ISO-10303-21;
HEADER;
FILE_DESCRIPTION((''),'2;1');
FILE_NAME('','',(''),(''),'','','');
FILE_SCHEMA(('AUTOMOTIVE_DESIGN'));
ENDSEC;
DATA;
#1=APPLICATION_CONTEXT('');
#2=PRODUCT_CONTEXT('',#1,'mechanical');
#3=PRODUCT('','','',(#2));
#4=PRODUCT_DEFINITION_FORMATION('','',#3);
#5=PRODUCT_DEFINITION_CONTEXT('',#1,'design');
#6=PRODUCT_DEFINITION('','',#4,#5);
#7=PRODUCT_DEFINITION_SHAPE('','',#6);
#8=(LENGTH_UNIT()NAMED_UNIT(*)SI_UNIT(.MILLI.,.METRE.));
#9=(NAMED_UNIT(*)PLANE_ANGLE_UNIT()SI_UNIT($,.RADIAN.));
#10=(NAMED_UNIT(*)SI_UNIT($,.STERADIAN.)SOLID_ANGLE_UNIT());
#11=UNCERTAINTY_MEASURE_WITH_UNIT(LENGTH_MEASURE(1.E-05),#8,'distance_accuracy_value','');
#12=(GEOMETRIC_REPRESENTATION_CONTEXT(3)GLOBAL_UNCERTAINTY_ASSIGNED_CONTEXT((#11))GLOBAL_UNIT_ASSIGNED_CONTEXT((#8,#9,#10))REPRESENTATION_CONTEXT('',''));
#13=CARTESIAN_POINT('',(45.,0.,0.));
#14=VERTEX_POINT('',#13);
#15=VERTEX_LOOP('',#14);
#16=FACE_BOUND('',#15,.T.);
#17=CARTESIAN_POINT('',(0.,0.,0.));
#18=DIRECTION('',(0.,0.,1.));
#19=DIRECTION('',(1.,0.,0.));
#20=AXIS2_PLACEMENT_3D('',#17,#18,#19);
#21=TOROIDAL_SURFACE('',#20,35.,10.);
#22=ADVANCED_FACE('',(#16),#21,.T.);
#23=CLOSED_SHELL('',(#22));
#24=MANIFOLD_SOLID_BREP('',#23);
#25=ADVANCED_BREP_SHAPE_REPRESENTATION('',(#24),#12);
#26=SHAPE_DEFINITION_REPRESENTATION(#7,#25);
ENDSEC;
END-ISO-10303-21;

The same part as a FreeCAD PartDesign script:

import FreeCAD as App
import Part
import Sketcher

V = App.Vector

doc = App.newDocument("Part")
body = doc.addObject("PartDesign::Body", "Body")

# Sketch on YZ plane
sketch1 = body.newObject("Sketcher::SketchObject", "Sketch")
sketch1.AttachmentSupport = (doc.getObject("YZ_Plane"), [""])
sketch1.MapMode = "FlatFace"
sketch1.addGeometry(Part.Circle(V(35, 0, 0), V(0, 0, 1), 10), False)
sketch1.addConstraint([
    Sketcher.Constraint("PointOnObject", 0, 3, -1),
    Sketcher.Constraint("Diameter", 0, 20.0),
    Sketcher.Constraint("DistanceX", -1, 1, 0, 3, 35.0),
])
revolution = body.newObject("PartDesign::Revolution", "Revolution")
revolution.Profile = sketch1
revolution.ReferenceAxis = (sketch1, ["V_Axis"])
revolution.Angle = 360

doc.recompute()
